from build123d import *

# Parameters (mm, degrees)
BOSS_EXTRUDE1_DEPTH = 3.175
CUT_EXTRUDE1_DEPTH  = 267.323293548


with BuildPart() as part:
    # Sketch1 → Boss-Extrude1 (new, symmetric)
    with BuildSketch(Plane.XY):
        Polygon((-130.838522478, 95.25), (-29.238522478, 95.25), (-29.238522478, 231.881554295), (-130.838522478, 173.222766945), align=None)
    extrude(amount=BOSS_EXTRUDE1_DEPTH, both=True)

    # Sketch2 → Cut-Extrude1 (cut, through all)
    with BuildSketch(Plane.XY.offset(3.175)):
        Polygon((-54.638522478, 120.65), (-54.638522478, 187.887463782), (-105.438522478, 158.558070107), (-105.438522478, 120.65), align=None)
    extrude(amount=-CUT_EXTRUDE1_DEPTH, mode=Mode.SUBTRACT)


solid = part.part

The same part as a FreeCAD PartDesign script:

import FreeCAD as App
import Part
import Sketcher
from FreeCAD import Vector
Q = App.Units.Quantity


def add_polygon(sketch, points):
    """Adds a closed chain of lines whose ends are joined by coincident constraints."""
    first, n = sketch.GeometryCount, len(points)
    for a, b in zip(points, points[1:] + points[:1]):
        sketch.addGeometry(Part.LineSegment(App.Vector(*a, 0), App.Vector(*b, 0)), False)
    for i in range(n):
        sketch.addConstraint(Sketcher.Constraint("Coincident", first + i, 2, first + (i + 1) % n, 1))

doc = App.newDocument("Part")
body = doc.addObject("PartDesign::Body", "Body")

sketch1 = body.newObject("Sketcher::SketchObject", "Sketch")
sketch1.AttachmentSupport = (doc.getObject("XY_Plane"), [""])
sketch1.MapMode = "FlatFace"
add_polygon(sketch1, [(-130.838522, 95.25), (-29.238522, 95.25), (-29.238522, 231.881554), (-130.838522, 173.222767)])
sketch1.addConstraint(Sketcher.Constraint("Horizontal", 0))
sketch1.addConstraint(Sketcher.Constraint("Vertical", 1))
sketch1.addConstraint(Sketcher.Constraint("Vertical", 3))
sketch1.addConstraint(Sketcher.Constraint("DistanceX", 0, 1, 0, 2, Q("4 in")))
sketch1.addConstraint(Sketcher.Constraint("Angle", 2, Q("-150 deg")))
sketch1.addConstraint(Sketcher.Constraint("DistanceY", -1, 1, 0, 2, Q("3.75 in")))
sketch1.addConstraint(Sketcher.Constraint("DistanceY", 1, 1, 1, 2, 136.631554))
sketch1.addConstraint(Sketcher.Constraint("DistanceX", 0, 2, -1, 1, 29.238522))
pad1 = body.newObject("PartDesign::Pad", "Pad")
pad1.Profile = sketch1
pad1.Length = Q("0.25 in")
pad1.Midplane = True

sketch2 = body.newObject("Sketcher::SketchObject", "Sketch001")
sketch2.AttachmentSupport = (doc.getObject("XY_Plane"), [""])
sketch2.MapMode = "FlatFace"
sketch2.AttachmentOffset = App.Placement(Vector(0, 0, 0.125 * 25.4), App.Rotation())
add_polygon(sketch2, [(-54.638522, 120.65), (-54.638522, 187.887464), (-105.438522, 158.55807), (-105.438522, 120.65)])
sketch2.addConstraint(Sketcher.Constraint("Vertical", 0))
sketch2.addConstraint(Sketcher.Constraint("Vertical", 2))
sketch2.addConstraint(Sketcher.Constraint("Horizontal", 3))
sketch2.addConstraint(Sketcher.Constraint("DistanceX", 3, 1, 3, 2, Q("2 in")))
sketch2.addConstraint(Sketcher.Constraint("Angle", 1, Q("-150 deg")))
sketch2.addConstraint(Sketcher.Constraint("DistanceY", -1, 1, 2, 2, Q("4.75 in")))
sketch2.addConstraint(Sketcher.Constraint("DistanceY", 2, 2, 2, 1, 37.90807))
sketch2.addConstraint(Sketcher.Constraint("DistanceX", 0, 2, -1, 1, 54.638522))
pocket1 = body.newObject("PartDesign::Pocket", "Pocket")
pocket1.Profile = sketch2
pocket1.Type = "ThroughAll"

doc.recompute()
